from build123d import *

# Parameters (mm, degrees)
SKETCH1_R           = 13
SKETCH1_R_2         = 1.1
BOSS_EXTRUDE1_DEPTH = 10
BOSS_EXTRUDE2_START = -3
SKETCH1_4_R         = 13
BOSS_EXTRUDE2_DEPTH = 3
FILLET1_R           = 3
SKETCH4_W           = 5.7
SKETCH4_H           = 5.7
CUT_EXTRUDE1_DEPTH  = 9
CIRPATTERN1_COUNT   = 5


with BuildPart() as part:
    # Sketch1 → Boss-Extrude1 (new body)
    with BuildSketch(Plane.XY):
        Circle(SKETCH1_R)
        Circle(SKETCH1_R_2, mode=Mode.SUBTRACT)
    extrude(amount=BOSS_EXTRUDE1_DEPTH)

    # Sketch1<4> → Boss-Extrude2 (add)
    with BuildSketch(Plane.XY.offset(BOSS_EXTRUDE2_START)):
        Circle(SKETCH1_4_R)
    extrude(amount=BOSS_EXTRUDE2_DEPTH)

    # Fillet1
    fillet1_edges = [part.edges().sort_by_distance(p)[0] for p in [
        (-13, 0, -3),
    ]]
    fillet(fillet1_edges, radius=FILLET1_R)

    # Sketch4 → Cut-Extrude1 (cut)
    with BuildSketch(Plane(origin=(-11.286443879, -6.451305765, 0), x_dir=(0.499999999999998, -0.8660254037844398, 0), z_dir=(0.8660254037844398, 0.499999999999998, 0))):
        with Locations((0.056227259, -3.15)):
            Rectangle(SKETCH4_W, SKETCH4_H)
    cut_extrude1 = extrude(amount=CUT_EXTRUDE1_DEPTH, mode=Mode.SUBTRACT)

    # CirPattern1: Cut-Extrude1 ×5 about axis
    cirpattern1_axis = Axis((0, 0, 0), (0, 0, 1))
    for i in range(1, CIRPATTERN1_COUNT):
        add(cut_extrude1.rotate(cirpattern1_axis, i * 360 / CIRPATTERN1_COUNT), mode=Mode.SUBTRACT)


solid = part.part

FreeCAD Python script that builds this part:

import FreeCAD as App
import Part
import Sketcher
from FreeCAD import Vector
Q = App.Units.Quantity


def edges_at(feature, points):
    """Names of the edges that pass closest to the given points."""
    edges = feature.Shape.Edges
    near = lambda p: min(range(len(edges)), key=lambda i: edges[i].distToShape(Part.Vertex(*p))[0])
    return sorted({f"Edge{near(p) + 1}" for p in points})

doc = App.newDocument("Part")
body = doc.addObject("PartDesign::Body", "Body")

# Sketch on XY plane
sketch1 = body.newObject("Sketcher::SketchObject", "Sketch")
sketch1.AttachmentSupport = (doc.getObject("XY_Plane"), [""])
sketch1.MapMode = "FlatFace"
sketch1.addGeometry([
    Part.Circle(Vector(0, 0, 0), Vector(0, 0, 1), 13),
    Part.Circle(Vector(0, 0, 0), Vector(0, 0, 1), 1.1),
], False)
sketch1.addConstraint([
    Sketcher.Constraint("Coincident", 0, 3, -1, 1),
    Sketcher.Constraint("Coincident", 1, 3, -1, 1),
    Sketcher.Constraint("Diameter", 0, Q("26 mm")),
    Sketcher.Constraint("Diameter", 1, Q("2.2 mm")),
])
pad1 = body.newObject("PartDesign::Pad", "Pad")
pad1.Profile = sketch1
pad1.Length = 10

# Sketch on XY plane
sketch2 = body.newObject("Sketcher::SketchObject", "Sketch001")
sketch2.AttachmentSupport = (doc.getObject("XY_Plane"), [""])
sketch2.MapMode = "FlatFace"
sketch2.AttachmentOffset = App.Placement(Vector(0, 0, -3), App.Rotation())
sketch2.addGeometry(Part.Circle(Vector(0, 0, 0), Vector(0, 0, 1), 13), False)
sketch2.addConstraint([
    Sketcher.Constraint("Coincident", 0, 3, -1, 1),
    Sketcher.Constraint("Diameter", 0, Q("26 mm")),
])
pad2 = body.newObject("PartDesign::Pad", "Pad001")
pad2.Profile = sketch2
pad2.Length = 3
doc.recompute()

fillet = body.newObject("PartDesign::Fillet", "Fillet")
fillet.Base = (pad2, edges_at(pad2, [(-13, 0, -3)]))
fillet.Radius = 3

# Sketch on an angled plane
sketch3 = body.newObject("Sketcher::SketchObject", "Sketch002")
sketch3.Placement = App.Placement(Vector(-11.286444, -6.451306, 0), App.Rotation(Vector(0.5, -0.866025404, 0), Vector(0, 0, -1), Vector(0.866025404, 0.5, 0), "ZXY"))
sketch3.addGeometry([
    Part.LineSegment(Vector(-3, 0, 0), Vector(-3, -6, 0)),
    Part.LineSegment(Vector(-3, -6, 0), Vector(3, -6, 0)),
    Part.LineSegment(Vector(3, -6, 0), Vector(3, 0, 0)),
    Part.LineSegment(Vector(3, 0, 0), Vector(-3, 0, 0)),
], False)
sketch3.addConstraint([
    Sketcher.Constraint("Coincident", 0, 2, 1, 1),
    Sketcher.Constraint("Coincident", 1, 2, 2, 1),
    Sketcher.Constraint("Coincident", 2, 2, 3, 1),
    Sketcher.Constraint("Coincident", 3, 2, 0, 1),
    Sketcher.Constraint("Vertical", 0),
    Sketcher.Constraint("Horizontal", 1),
    Sketcher.Constraint("Vertical", 2),
    Sketcher.Constraint("Horizontal", 3),
    Sketcher.Constraint("Equal", 3, 0),
    Sketcher.Constraint("DistanceX", 1, 1, 1, 2, Q("5.7 mm")),
    Sketcher.Constraint("DistanceY", 0, 2, -1, 1, Q("6 mm")),
    Sketcher.Constraint("DistanceX", 0, 2, -1, 1, Q("2.793773 mm")),
])
pocket1 = body.newObject("PartDesign::Pocket", "Pocket")
pocket1.Profile = sketch3
pocket1.Length = 9
pocket1.Reversed = True
doc.recompute()

polarpattern = body.newObject("PartDesign::PolarPattern", "PolarPattern")
polarpattern.Originals = [pocket1]
polarpattern.Axis = (doc.getObject("Z_Axis"), [""])
polarpattern.Angle = 360
polarpattern.Occurrences = 5
body.Tip = polarpattern

doc.recompute()
